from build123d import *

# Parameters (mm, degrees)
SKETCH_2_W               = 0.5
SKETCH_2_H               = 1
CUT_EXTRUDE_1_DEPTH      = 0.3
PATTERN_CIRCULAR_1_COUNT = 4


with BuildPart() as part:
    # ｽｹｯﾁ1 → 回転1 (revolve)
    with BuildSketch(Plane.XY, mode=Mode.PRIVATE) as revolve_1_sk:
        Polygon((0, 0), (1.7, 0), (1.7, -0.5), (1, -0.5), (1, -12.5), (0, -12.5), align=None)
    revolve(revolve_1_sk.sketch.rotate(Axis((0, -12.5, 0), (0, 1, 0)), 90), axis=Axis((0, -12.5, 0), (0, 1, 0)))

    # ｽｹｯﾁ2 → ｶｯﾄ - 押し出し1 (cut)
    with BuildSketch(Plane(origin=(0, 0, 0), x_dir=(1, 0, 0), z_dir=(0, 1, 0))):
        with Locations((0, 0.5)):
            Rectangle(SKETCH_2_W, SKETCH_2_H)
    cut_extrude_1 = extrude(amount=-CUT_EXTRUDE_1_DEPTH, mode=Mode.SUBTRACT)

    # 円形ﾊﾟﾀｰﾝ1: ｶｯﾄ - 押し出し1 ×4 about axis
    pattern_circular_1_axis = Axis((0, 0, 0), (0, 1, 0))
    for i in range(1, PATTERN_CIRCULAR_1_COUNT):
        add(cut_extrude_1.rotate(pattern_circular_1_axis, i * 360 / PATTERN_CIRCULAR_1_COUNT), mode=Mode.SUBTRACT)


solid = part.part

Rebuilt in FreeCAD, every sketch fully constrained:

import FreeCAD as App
import Part
import Sketcher
from FreeCAD import Vector

doc = App.newDocument("Part")
body = doc.addObject("PartDesign::Body", "Body")

# Sketch on XY plane
sketch1 = body.newObject("Sketcher::SketchObject", "Sketch")
sketch1.AttachmentSupport = (doc.getObject("XY_Plane"), [""])
sketch1.MapMode = "FlatFace"
sketch1.addGeometry([
    Part.LineSegment(Vector(1.7, 0, 0), Vector(0, 0, 0)),  # 0
    Part.LineSegment(Vector(0, 0, 0), Vector(0, -12.5, 0)),  # 1
    Part.LineSegment(Vector(0, -12.5, 0), Vector(1, -12.5, 0)),  # 2
    Part.LineSegment(Vector(1, -12.5, 0), Vector(1, -0.5, 0)),  # 3
    Part.LineSegment(Vector(1, -0.5, 0), Vector(1.7, -0.5, 0)),  # 4
    Part.LineSegment(Vector(1.7, -0.5, 0), Vector(1.7, 0, 0)),  # 5
], False)
sketch1.addConstraint([
    Sketcher.Constraint("Coincident", 0, 2, 1, 1),
    Sketcher.Constraint("Coincident", 1, 2, 2, 1),
    Sketcher.Constraint("Coincident", 2, 2, 3, 1),
    Sketcher.Constraint("Coincident", 3, 2, 4, 1),
    Sketcher.Constraint("Coincident", 4, 2, 5, 1),
    Sketcher.Constraint("Coincident", 5, 2, 0, 1),
    Sketcher.Constraint("Horizontal", 0),
    Sketcher.Constraint("Vertical", 1),
    Sketcher.Constraint("Horizontal", 2),
    Sketcher.Constraint("Vertical", 3),
    Sketcher.Constraint("Horizontal", 4),
    Sketcher.Constraint("Vertical", 5),
    Sketcher.Constraint("Coincident", 0, 2, -1, 1),
    Sketcher.Constraint("DistanceX", 2, 1, 2, 2, 1.0),
    Sketcher.Constraint("DistanceY", 3, 1, 3, 2, 12.0),
    Sketcher.Constraint("DistanceX", 0, 2, 0, 1, 1.7),
    Sketcher.Constraint("DistanceY", 1, 2, 1, 1, 12.5),
])
revolution = body.newObject("PartDesign::Revolution", "Revolution")
revolution.Profile = sketch1
revolution.ReferenceAxis = (sketch1, ["V_Axis"])
revolution.Angle = 360

# Sketch on XZ plane
sketch2 = body.newObject("Sketcher::SketchObject", "Sketch001")
sketch2.AttachmentSupport = (doc.getObject("XZ_Plane"), [""])
sketch2.MapMode = "FlatFace"
sketch2.addGeometry([
    Part.LineSegment(Vector(-0.25, -1, 0), Vector(-0.25, 0, 0)),
    Part.LineSegment(Vector(-0.25, 0, 0), Vector(0.25, 0, 0)),
    Part.LineSegment(Vector(0.25, 0, 0), Vector(0.25, -1, 0)),
    Part.LineSegment(Vector(0.25, -1, 0), Vector(-0.25, -1, 0)),
], False)
sketch2.addConstraint([
    Sketcher.Constraint("Coincident", 0, 2, 1, 1),
    Sketcher.Constraint("Coincident", 1, 2, 2, 1),
    Sketcher.Constraint("Coincident", 2, 2, 3, 1),
    Sketcher.Constraint("Coincident", 3, 2, 0, 1),
    Sketcher.Constraint("Vertical", 0),
    Sketcher.Constraint("Horizontal", 1),
    Sketcher.Constraint("Vertical", 2),
    Sketcher.Constraint("Horizontal", 3),
    Sketcher.Constraint("Symmetric", 0, 2, 1, 2, -1, 1),
    Sketcher.Constraint("DistanceY", 0, 1, 0, 2, 1.0),
    Sketcher.Constraint("DistanceX", 1, 1, 1, 2, 0.5),
])
pocket1 = body.newObject("PartDesign::Pocket", "Pocket")
pocket1.Profile = sketch2
pocket1.Length = 0.3
pocket1.Reversed = True
doc.recompute()

polarpattern = body.newObject("PartDesign::PolarPattern", "PolarPattern")
polarpattern.Originals = [pocket1]
polarpattern.Axis = (doc.getObject("Y_Axis"), [""])
polarpattern.Angle = 360
polarpattern.Occurrences = 4
body.Tip = polarpattern

doc.recompute()
